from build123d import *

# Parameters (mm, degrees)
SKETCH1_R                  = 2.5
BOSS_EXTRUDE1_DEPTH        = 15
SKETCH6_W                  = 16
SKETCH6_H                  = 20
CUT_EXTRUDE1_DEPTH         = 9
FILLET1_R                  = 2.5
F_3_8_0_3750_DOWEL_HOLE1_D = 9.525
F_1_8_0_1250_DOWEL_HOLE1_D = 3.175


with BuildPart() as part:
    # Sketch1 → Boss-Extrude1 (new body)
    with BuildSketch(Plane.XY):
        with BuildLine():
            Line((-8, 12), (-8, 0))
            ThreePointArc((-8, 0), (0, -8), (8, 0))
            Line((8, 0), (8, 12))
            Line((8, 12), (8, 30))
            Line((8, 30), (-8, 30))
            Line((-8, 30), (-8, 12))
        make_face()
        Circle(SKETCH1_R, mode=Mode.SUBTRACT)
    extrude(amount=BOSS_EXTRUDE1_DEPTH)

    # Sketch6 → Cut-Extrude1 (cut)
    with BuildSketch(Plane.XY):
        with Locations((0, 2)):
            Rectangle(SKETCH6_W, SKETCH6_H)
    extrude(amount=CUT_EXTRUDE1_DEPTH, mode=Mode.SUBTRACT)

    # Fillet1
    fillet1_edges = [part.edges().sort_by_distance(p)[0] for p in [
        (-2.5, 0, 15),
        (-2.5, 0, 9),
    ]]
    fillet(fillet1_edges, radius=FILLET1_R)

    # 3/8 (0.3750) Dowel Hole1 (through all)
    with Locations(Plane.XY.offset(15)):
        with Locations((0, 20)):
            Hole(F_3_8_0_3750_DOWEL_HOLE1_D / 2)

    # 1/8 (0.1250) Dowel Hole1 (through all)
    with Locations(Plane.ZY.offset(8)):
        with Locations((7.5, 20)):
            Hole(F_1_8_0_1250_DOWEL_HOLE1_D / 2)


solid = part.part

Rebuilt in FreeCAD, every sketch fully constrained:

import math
import FreeCAD as App
import Part
import Sketcher
from FreeCAD import Vector


def edges_at(feature, points):
    """Names of the edges that pass closest to the given points."""
    edges = feature.Shape.Edges
    near = lambda p: min(range(len(edges)), key=lambda i: edges[i].distToShape(Part.Vertex(*p))[0])
    return sorted({f"Edge{near(p) + 1}" for p in points})


def add_polygon(sketch, points):
    """Adds a closed chain of lines whose ends are joined by coincident constraints."""
    first, n = sketch.GeometryCount, len(points)
    for a, b in zip(points, points[1:] + points[:1]):
        sketch.addGeometry(Part.LineSegment(App.Vector(*a, 0), App.Vector(*b, 0)), False)
    for i in range(n):
        sketch.addConstraint(Sketcher.Constraint("Coincident", first + i, 2, first + (i + 1) % n, 1))

doc = App.newDocument("Part")
body = doc.addObject("PartDesign::Body", "Body")

sketch1 = body.newObject("Sketcher::SketchObject", "Sketch")
sketch1.AttachmentSupport = (doc.getObject("XY_Plane"), [""])
sketch1.MapMode = "FlatFace"
sketch1.addGeometry([
    Part.ArcOfCircle(Part.Circle(Vector(0, 0, 0), Vector(0, 0, 1), 8), math.radians(180), math.radians(360)),
    Part.LineSegment(Vector(8, 0, 0), Vector(8, 30, 0)),
    Part.LineSegment(Vector(8, 30, 0), Vector(-8, 30, 0)),
    Part.LineSegment(Vector(-8, 30, 0), Vector(-8, 0, 0)),
    Part.Circle(Vector(0, 0, 0), Vector(0, 0, 1), 2.5),
], False)
sketch1.addConstraint([
    Sketcher.Constraint("Tangent", 0, 2, 1, 1),
    Sketcher.Constraint("Coincident", 1, 2, 2, 1),
    Sketcher.Constraint("Coincident", 2, 2, 3, 1),
    Sketcher.Constraint("Tangent", 3, 2, 0, 1),
    Sketcher.Constraint("Vertical", 1),
    Sketcher.Constraint("Horizontal", 2),
    Sketcher.Constraint("Vertical", 3),
    Sketcher.Constraint("Coincident", 0, 3, -1, 1),
    Sketcher.Constraint("Coincident", 4, 3, -1, 1),
    Sketcher.Constraint("Diameter", 4, 5.0),
    Sketcher.Constraint("Radius", 0, 8.0),
    Sketcher.Constraint("DistanceY", 1, 1, 1, 2, 30.0),
])
pad1 = body.newObject("PartDesign::Pad", "Pad")
pad1.Profile = sketch1
pad1.Length = 15

sketch2 = body.newObject("Sketcher::SketchObject", "Sketch001")
sketch2.AttachmentSupport = (doc.getObject("XY_Plane"), [""])
sketch2.MapMode = "FlatFace"
add_polygon(sketch2, [(-8, 12), (-8, -8), (8, -8), (8, 12)])
sketch2.addConstraint([
    Sketcher.Constraint("Vertical", 0),
    Sketcher.Constraint("Horizontal", 1),
    Sketcher.Constraint("Vertical", 2),
    Sketcher.Constraint("Horizontal", 3),
    Sketcher.Constraint("DistanceX", 1, 1, 1, 2, 16.0),
    Sketcher.Constraint("DistanceY", 0, 2, 0, 1, 20.0),
    Sketcher.Constraint("DistanceX", 0, 2, -1, 1, 8.0),
    Sketcher.Constraint("DistanceY", 0, 2, -1, 1, 8.0),
])
pocket1 = body.newObject("PartDesign::Pocket", "Pocket")
pocket1.Profile = sketch2
pocket1.Length = 9
pocket1.Reversed = True
doc.recompute()

fillet = body.newObject("PartDesign::Fillet", "Fillet")
fillet.Base = (pocket1, edges_at(pocket1, [(-2.5, 0, 15), (-2.5, 0, 9)]))
fillet.Radius = 2.5

sketch3 = body.newObject("Sketcher::SketchObject", "Sketch002")
sketch3.AttachmentSupport = (doc.getObject("XY_Plane"), [""])
sketch3.MapMode = "FlatFace"
sketch3.AttachmentOffset = App.Placement(Vector(0, 0, 15), App.Rotation())
sketch3.addGeometry(Part.Circle(Vector(0, 20, 0), Vector(0, 0, 1), 4.7625), False)
sketch3.addConstraint([
    Sketcher.Constraint("PointOnObject", 0, 3, -2),
    Sketcher.Constraint("Diameter", 0, 9.525),
    Sketcher.Constraint("DistanceY", -1, 1, 0, 3, 20.0),
])
doc.recompute()
hole = body.newObject("PartDesign::Hole", "Hole")
hole.Profile = sketch3
hole.ThreadType = "None"
hole.Diameter = 9.525
hole.DepthType = "ThroughAll"

sketch4 = body.newObject("Sketcher::SketchObject", "Sketch003")
sketch4.AttachmentSupport = (doc.getObject("YZ_Plane"), [""])
sketch4.MapMode = "FlatFace"
sketch4.AttachmentOffset = App.Placement(Vector(0, 0, -8), App.Rotation())
sketch4.addGeometry(Part.Circle(Vector(20, 7.5, 0), Vector(0, 0, 1), 1.5875), False)
sketch4.addConstraint([
    Sketcher.Constraint("Diameter", 0, 3.175),
    Sketcher.Constraint("DistanceX", -1, 1, 0, 3, 20.0),
    Sketcher.Constraint("DistanceY", -1, 1, 0, 3, 7.5),
])
doc.recompute()
hole2 = body.newObject("PartDesign::Hole", "Hole001")
hole2.Profile = sketch4
hole2.ThreadType = "None"
hole2.Diameter = 3.175
hole2.DepthType = "ThroughAll"
hole2.Reversed = True

doc.recompute()
